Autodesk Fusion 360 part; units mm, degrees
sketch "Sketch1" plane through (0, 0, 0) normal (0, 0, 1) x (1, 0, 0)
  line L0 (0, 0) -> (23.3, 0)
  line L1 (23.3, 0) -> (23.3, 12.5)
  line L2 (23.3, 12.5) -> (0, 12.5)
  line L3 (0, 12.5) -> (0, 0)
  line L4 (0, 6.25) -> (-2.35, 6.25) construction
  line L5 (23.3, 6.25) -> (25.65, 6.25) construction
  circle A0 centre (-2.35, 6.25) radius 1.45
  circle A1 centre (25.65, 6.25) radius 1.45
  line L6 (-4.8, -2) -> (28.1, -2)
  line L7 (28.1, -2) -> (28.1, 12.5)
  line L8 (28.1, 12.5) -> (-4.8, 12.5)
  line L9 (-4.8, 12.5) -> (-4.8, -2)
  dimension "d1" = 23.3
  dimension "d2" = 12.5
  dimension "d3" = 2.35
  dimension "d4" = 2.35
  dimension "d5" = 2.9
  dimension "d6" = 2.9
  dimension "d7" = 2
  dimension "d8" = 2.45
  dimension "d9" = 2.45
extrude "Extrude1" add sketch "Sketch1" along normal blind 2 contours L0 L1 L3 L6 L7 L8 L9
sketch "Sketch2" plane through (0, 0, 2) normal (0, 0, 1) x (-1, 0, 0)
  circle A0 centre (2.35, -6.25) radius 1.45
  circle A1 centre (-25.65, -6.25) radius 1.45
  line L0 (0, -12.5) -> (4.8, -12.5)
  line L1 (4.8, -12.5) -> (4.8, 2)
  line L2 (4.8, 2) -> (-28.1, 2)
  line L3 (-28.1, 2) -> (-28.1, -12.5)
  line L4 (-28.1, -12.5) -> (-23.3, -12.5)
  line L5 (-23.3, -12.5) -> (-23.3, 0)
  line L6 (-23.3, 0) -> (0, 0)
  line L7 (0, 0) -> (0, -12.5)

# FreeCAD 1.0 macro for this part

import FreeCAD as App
import Part
import Sketcher

V = App.Vector


def add_polygon(sketch, points):
    """Adds a closed chain of lines whose ends are joined by coincident constraints."""
    first, n = sketch.GeometryCount, len(points)
    for a, b in zip(points, points[1:] + points[:1]):
        sketch.addGeometry(Part.LineSegment(App.Vector(*a, 0), App.Vector(*b, 0)), False)
    for i in range(n):
        sketch.addConstraint(Sketcher.Constraint("Coincident", first + i, 2, first + (i + 1) % n, 1))

doc = App.newDocument("Part")
body = doc.addObject("PartDesign::Body", "Body")

sketch1 = body.newObject("Sketcher::SketchObject", "Sketch")
sketch1.AttachmentSupport = (doc.getObject("XY_Plane"), [""])
sketch1.MapMode = "FlatFace"
add_polygon(sketch1, [(23.3, 0), (0, 0), (0, 12.5), (-4.8, 12.5), (-4.8, -2), (28.1, -2), (28.1, 12.5), (23.3, 12.5)])
sketch1.addGeometry(Part.Circle(V(-2.4, 6.2, 0), V(0, 0, 1), 1.4), False)
sketch1.addGeometry(Part.Circle(V(25.6, 6.2, 0), V(0, 0, 1), 1.4), False)
sketch1.addConstraint([
    Sketcher.Constraint("Horizontal", 0),
    Sketcher.Constraint("Vertical", 1),
    Sketcher.Constraint("Horizontal", 2),
    Sketcher.Constraint("Vertical", 3),
    Sketcher.Constraint("Horizontal", 4),
    Sketcher.Constraint("Vertical", 5),
    Sketcher.Constraint("Horizontal", 6),
    Sketcher.Constraint("Vertical", 7),
    Sketcher.Constraint("Coincident", 0, 2, -1, 1),
    Sketcher.Constraint("Equal", 8, 9),
    Sketcher.Constraint("Horizontal", 8, 3, 9, 3),
    Sketcher.Constraint("Horizontal", 2, 2, 5, 2),
    Sketcher.Constraint("Equal", 2, 6),
    Sketcher.Constraint("Diameter", 8, 2.9),
    Sketcher.Constraint("DistanceX", 0, 2, 0, 1, 23.3),
    Sketcher.Constraint("DistanceY", 1, 1, 1, 2, 12.5),
    Sketcher.Constraint("DistanceY", 3, 2, -1, 1, 2.0),
    Sketcher.Constraint("DistanceX", 8, 3, -1, 1, 2.35),
    Sketcher.Constraint("DistanceX", 2, 2, 8, 3, 2.45),
    Sketcher.Constraint("DistanceX", 9, 3, 4, 2, 2.45),
    Sketcher.Constraint("DistanceY", -1, 1, 8, 3, 6.25),
])
pad1 = body.newObject("PartDesign::Pad", "Pad")
pad1.Profile = sketch1
pad1.Length = 2

doc.recompute()
